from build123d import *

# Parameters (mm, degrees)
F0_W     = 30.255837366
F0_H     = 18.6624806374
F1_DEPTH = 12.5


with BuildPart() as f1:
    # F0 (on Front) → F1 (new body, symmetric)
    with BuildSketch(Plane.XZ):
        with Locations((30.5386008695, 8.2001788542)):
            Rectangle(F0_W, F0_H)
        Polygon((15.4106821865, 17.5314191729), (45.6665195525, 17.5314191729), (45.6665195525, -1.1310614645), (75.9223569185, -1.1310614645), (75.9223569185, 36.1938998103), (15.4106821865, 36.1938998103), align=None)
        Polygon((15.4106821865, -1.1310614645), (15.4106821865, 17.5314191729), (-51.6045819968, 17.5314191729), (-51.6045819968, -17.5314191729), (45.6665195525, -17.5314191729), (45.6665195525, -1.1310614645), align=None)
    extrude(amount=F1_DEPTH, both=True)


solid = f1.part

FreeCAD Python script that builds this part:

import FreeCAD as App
import Part
import Sketcher
Q = App.Units.Quantity


def add_polygon(sketch, points):
    """Adds a closed chain of lines whose ends are joined by coincident constraints."""
    first, n = sketch.GeometryCount, len(points)
    for a, b in zip(points, points[1:] + points[:1]):
        sketch.addGeometry(Part.LineSegment(App.Vector(*a, 0), App.Vector(*b, 0)), False)
    for i in range(n):
        sketch.addConstraint(Sketcher.Constraint("Coincident", first + i, 2, first + (i + 1) % n, 1))

doc = App.newDocument("Part")
body = doc.addObject("PartDesign::Body", "Body")

# Sketch on XZ plane
sketch1 = body.newObject("Sketcher::SketchObject", "Sketch")
sketch1.AttachmentSupport = (doc.getObject("XZ_Plane"), [""])
sketch1.MapMode = "FlatFace"
add_polygon(sketch1, [(46, -1), (76, -1), (76, 36), (15, 36), (15, 18), (-52, 18), (-52, -18), (46, -18)])  # lines 0-7
sketch1.addConstraint([
    Sketcher.Constraint("Horizontal", 0),
    Sketcher.Constraint("Vertical", 1),
    Sketcher.Constraint("Horizontal", 2),
    Sketcher.Constraint("Vertical", 3),
    Sketcher.Constraint("Horizontal", 4),
    Sketcher.Constraint("Vertical", 5),
    Sketcher.Constraint("Horizontal", 6),
    Sketcher.Constraint("Vertical", 7),
    Sketcher.Constraint("DistanceX", 6, 1, 6, 2, Q("97.271102 mm")),
    Sketcher.Constraint("DistanceY", 1, 1, 1, 2, Q("37.324961 mm")),
    Sketcher.Constraint("DistanceY", 3, 2, 3, 1, Q("18.662481 mm")),
    Sketcher.Constraint("DistanceY", 5, 2, 5, 1, Q("35.062838 mm")),
    Sketcher.Constraint("DistanceY", -1, 1, 1, 2, Q("36.1939 mm")),
    Sketcher.Constraint("DistanceX", 0, 1, 0, 2, Q("30.255837 mm")),
    Sketcher.Constraint("DistanceX", 2, 2, 2, 1, Q("60.511675 mm")),
    Sketcher.Constraint("DistanceX", 4, 2, -1, 1, Q("51.604582 mm")),
])
pad1 = body.newObject("PartDesign::Pad", "Pad")
pad1.Profile = sketch1
pad1.Length = 25
pad1.Midplane = True

doc.recompute()
